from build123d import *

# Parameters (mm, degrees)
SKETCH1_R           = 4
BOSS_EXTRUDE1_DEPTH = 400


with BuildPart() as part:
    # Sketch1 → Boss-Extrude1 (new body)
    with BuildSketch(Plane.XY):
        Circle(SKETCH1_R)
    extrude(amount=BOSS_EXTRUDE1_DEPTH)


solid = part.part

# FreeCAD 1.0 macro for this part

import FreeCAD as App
import Part
import Sketcher
from FreeCAD import Vector

doc = App.newDocument("Part")
body = doc.addObject("PartDesign::Body", "Body")

# Sketch on XY plane
sketch1 = doc.addObject("Sketcher::SketchObject", "Sketch")
body.addObject(sketch1)
sketch1.AttachmentSupport = (doc.XY_Plane, [""])
sketch1.MapMode = "FlatFace"
sketch1.addGeometry(Part.Circle(Vector(0, 0, 0), Vector(0, 0, 1), 4), False)
sketch1.addConstraint([
    Sketcher.Constraint("Coincident", 0, 3, -1, 1),
    Sketcher.Constraint("Diameter", 0, 8.0),
])
pad1 = doc.addObject("PartDesign::Pad", "Pad")
body.addObject(pad1)
pad1.Profile = sketch1
pad1.Length = 400

doc.recompute()
